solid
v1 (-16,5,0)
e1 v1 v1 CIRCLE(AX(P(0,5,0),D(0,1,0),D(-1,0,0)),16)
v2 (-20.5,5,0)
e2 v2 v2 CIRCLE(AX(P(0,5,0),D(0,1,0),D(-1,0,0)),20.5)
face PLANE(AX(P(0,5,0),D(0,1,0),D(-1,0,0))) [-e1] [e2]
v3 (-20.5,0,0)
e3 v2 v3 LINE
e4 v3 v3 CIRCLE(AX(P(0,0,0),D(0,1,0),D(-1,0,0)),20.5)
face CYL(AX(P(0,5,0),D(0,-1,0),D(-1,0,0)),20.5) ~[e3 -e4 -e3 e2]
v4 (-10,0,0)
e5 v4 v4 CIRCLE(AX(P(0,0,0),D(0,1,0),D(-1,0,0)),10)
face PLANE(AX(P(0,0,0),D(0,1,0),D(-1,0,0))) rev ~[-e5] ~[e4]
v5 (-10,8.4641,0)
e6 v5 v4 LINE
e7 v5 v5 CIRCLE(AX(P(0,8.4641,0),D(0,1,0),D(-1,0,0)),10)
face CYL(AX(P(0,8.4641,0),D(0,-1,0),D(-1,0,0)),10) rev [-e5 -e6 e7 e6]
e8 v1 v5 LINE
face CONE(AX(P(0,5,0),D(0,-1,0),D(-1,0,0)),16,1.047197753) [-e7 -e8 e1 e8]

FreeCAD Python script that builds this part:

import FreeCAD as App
import Part
import Sketcher
Q = App.Units.Quantity

doc = App.newDocument("Part")
params = doc.addObject("Spreadsheet::Sheet", "Params")
for row, (alias, value) in enumerate([
    ("sketch1_height", "5 mm"),
    ("revolution_angle", "360 deg"),
], start=1):
    params.set(f"A{row}", alias)
    params.set(f"B{row}", "=" + value)
    params.setAlias(f"B{row}", alias)

body = doc.addObject("PartDesign::Body", "Body")

# Sketch on XY plane
sketch1 = body.newObject("Sketcher::SketchObject", "Sketch")
sketch1.AttachmentSupport = (doc.getObject("XY_Plane"), [""])
sketch1.MapMode = "FlatFace"
sketch1.addGeometry([
    Part.LineSegment(App.Vector(-10, 0, 0), App.Vector(-10, 8.5, 0)),  # 0
    Part.LineSegment(App.Vector(-10, 8.5, 0), App.Vector(-16, 5, 0)),  # 1
    Part.LineSegment(App.Vector(-16, 5, 0), App.Vector(-20.5, 5, 0)),  # 2
    Part.LineSegment(App.Vector(-20.5, 5, 0), App.Vector(-20.5, 0, 0)),  # 3
    Part.LineSegment(App.Vector(-20.5, 0, 0), App.Vector(-10, 0, 0)),  # 4
], False)
sketch1.addConstraint([
    Sketcher.Constraint("Coincident", 0, 2, 1, 1),
    Sketcher.Constraint("Coincident", 1, 2, 2, 1),
    Sketcher.Constraint("Coincident", 2, 2, 3, 1),
    Sketcher.Constraint("Coincident", 3, 2, 4, 1),
    Sketcher.Constraint("Coincident", 4, 2, 0, 1),
    Sketcher.Constraint("Vertical", 0),
    Sketcher.Constraint("Horizontal", 2),
    Sketcher.Constraint("Vertical", 3),
    Sketcher.Constraint("Horizontal", 4),
    Sketcher.Constraint("PointOnObject", 3, 2, -1),
    Sketcher.Constraint("DistanceY", 3, 2, 3, 1, Q("5 mm")),
    Sketcher.Constraint("DistanceX", 0, 2, -1, 1, Q("10 mm")),
    Sketcher.Constraint("DistanceX", 1, 2, -1, 1, Q("16 mm")),
    Sketcher.Constraint("DistanceX", 2, 2, -1, 1, Q("20.5 mm")),
    Sketcher.Constraint("Angle", 1, Q("-150 deg")),
])
sketch1.setExpression("Constraints[10]", "Params.sketch1_height")
revolution = body.newObject("PartDesign::Revolution", "Revolution")
revolution.Profile = sketch1
revolution.ReferenceAxis = (sketch1, ["V_Axis"])
revolution.setExpression("Angle", "Params.revolution_angle")

doc.recompute()
